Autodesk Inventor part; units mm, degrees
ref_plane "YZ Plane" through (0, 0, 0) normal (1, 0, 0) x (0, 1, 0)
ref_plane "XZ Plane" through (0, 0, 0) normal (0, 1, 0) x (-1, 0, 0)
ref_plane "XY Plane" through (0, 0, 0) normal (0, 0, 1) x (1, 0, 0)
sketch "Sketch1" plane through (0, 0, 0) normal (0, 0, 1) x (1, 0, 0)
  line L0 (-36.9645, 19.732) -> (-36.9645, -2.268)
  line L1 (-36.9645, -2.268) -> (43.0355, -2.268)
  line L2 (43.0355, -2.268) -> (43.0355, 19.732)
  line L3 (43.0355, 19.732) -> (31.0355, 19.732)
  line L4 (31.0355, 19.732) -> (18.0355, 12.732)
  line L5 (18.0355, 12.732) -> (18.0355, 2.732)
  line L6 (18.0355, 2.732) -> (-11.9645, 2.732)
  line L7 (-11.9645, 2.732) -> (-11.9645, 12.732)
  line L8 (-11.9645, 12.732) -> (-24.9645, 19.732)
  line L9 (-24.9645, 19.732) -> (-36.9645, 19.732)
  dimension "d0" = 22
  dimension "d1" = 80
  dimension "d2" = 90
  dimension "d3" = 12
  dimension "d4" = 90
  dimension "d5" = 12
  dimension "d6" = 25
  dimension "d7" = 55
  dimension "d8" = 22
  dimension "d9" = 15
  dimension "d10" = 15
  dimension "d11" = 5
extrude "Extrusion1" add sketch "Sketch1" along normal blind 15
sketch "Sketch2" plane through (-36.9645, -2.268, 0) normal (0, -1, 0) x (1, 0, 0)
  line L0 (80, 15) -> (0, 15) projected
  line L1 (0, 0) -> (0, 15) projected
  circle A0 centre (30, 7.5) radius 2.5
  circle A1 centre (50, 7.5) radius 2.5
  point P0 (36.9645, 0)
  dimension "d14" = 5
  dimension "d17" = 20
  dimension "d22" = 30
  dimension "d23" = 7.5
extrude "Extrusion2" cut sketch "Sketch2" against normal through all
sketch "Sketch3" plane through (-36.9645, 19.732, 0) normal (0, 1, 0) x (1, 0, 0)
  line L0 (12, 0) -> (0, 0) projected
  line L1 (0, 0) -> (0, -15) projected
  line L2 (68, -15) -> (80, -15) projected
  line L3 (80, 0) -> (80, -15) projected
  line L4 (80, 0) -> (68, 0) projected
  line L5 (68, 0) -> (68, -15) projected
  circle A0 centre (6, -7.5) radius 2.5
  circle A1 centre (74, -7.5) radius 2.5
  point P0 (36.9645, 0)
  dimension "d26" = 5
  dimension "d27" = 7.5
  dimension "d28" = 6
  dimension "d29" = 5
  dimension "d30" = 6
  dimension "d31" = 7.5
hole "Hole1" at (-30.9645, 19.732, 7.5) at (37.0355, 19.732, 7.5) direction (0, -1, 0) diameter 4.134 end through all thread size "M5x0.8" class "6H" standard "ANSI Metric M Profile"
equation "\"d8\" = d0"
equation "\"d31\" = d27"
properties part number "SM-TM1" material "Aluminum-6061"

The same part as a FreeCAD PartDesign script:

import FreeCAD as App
import Part
import Sketcher
from FreeCAD import Vector


def add_polygon(sketch, points):
    """Adds a closed chain of lines whose ends are joined by coincident constraints."""
    first, n = sketch.GeometryCount, len(points)
    for a, b in zip(points, points[1:] + points[:1]):
        sketch.addGeometry(Part.LineSegment(App.Vector(*a, 0), App.Vector(*b, 0)), False)
    for i in range(n):
        sketch.addConstraint(Sketcher.Constraint("Coincident", first + i, 2, first + (i + 1) % n, 1))

doc = App.newDocument("Part")
params = doc.addObject("Spreadsheet::Sheet", "Params")
for row, (alias, value) in enumerate([
    ("sketch1_width", "12 mm"),
    ("sketch1_width2", "80 mm"),
    ("sketch1_height", "22 mm"),
    ("pad1_length", "15 mm"),
    ("sketch2_diameter", "5 mm"),
    ("hole_diameter", "4.134 mm"),
], start=1):
    params.set(f"A{row}", alias)
    params.set(f"B{row}", "=" + value)
    params.setAlias(f"B{row}", alias)

body = doc.addObject("PartDesign::Body", "Body")

sketch1 = doc.addObject("Sketcher::SketchObject", "Sketch")
body.addObject(sketch1)
sketch1.AttachmentSupport = (doc.XY_Plane, [""])
sketch1.MapMode = "FlatFace"
add_polygon(sketch1, [(-24.9645, 19.732), (-36.9645, 19.732), (-36.9645, -2.268), (43.0355, -2.268), (43.0355, 19.732), (31.0355, 19.732), (18.0355, 12.732), (18.0355, 2.732), (-11.9645, 2.732), (-11.9645, 12.732)])
sketch1.addConstraint([
    Sketcher.Constraint("Horizontal", 0),
    Sketcher.Constraint("Vertical", 1),
    Sketcher.Constraint("Horizontal", 2),
    Sketcher.Constraint("Vertical", 3),
    Sketcher.Constraint("Horizontal", 4),
    Sketcher.Constraint("Vertical", 6),
    Sketcher.Constraint("Horizontal", 7),
    Sketcher.Constraint("Vertical", 8),
    Sketcher.Constraint("Horizontal", 0, 2, 3, 2),
    Sketcher.Constraint("Horizontal", 5, 2, 8, 2),
    Sketcher.Constraint("Equal", 0, 4),
    Sketcher.Constraint("Equal", 5, 9),
    Sketcher.Constraint("DistanceX", 0, 2, 0, 1, 12.0),
    Sketcher.Constraint("DistanceX", 2, 1, 2, 2, 80.0),
    Sketcher.Constraint("DistanceY", 1, 2, 1, 1, 22.0),
    Sketcher.Constraint("DistanceX", 5, 2, 3, 2, 25.0),
    Sketcher.Constraint("DistanceY", 2, 2, 5, 2, 15.0),
    Sketcher.Constraint("DistanceY", 2, 2, 6, 2, 5.0),
    Sketcher.Constraint("DistanceY", -1, 1, 0, 2, 19.732),
    Sketcher.Constraint("DistanceX", 0, 2, -1, 1, 36.9645),
])
sketch1.setExpression("Constraints[22]", "Params.sketch1_width")
sketch1.setExpression("Constraints[23]", "Params.sketch1_width2")
sketch1.setExpression("Constraints[24]", "Params.sketch1_height")
pad1 = doc.addObject("PartDesign::Pad", "Pad")
body.addObject(pad1)
pad1.Profile = sketch1
pad1.setExpression("Length", "Params.pad1_length")

sketch2 = doc.addObject("Sketcher::SketchObject", "Sketch001")
body.addObject(sketch2)
sketch2.AttachmentSupport = (doc.XZ_Plane, [""])
sketch2.MapMode = "FlatFace"
sketch2.AttachmentOffset = App.Placement(Vector(0, 0, 2.268), App.Rotation())
sketch2.addGeometry([
    Part.Circle(Vector(-6.9645, 7.5, 0), Vector(0, 0, 1), 2.5),
    Part.Circle(Vector(13.0355, 7.5, 0), Vector(0, 0, 1), 2.5),
], False)
sketch2.addConstraint([
    Sketcher.Constraint("Equal", 0, 1),
    Sketcher.Constraint("Horizontal", 0, 3, 1, 3),
    Sketcher.Constraint("Diameter", 0, 5.0),
    Sketcher.Constraint("DistanceX", 0, 3, 1, 3, 20.0),
    Sketcher.Constraint("DistanceY", -1, 1, 0, 3, 7.5),
    Sketcher.Constraint("DistanceX", 0, 3, -1, 1, 6.9645),
])
sketch2.setExpression("Constraints[2]", "Params.sketch2_diameter")
pocket1 = doc.addObject("PartDesign::Pocket", "Pocket")
body.addObject(pocket1)
pocket1.Profile = sketch2
pocket1.Type = "ThroughAll"

sketch3 = doc.addObject("Sketcher::SketchObject", "Sketch002")
body.addObject(sketch3)
sketch3.AttachmentSupport = (doc.XZ_Plane, [""])
sketch3.MapMode = "FlatFace"
sketch3.AttachmentOffset = App.Placement(Vector(0, 0, -19.732), App.Rotation())
sketch3.addGeometry([
    Part.Circle(Vector(-30.9645, 7.5, 0), Vector(0, 0, 1), 2.067),
    Part.Circle(Vector(37.0355, 7.5, 0), Vector(0, 0, 1), 2.067),
], False)
sketch3.addConstraint([
    Sketcher.Constraint("Equal", 0, 1),
    Sketcher.Constraint("Horizontal", 0, 3, 1, 3),
    Sketcher.Constraint("Diameter", 0, 4.134),
    Sketcher.Constraint("DistanceX", 0, 3, 1, 3, 68.0),
    Sketcher.Constraint("DistanceY", -1, 1, 0, 3, 7.5),
    Sketcher.Constraint("DistanceX", 0, 3, -1, 1, 30.9645),
])
doc.recompute()
hole = doc.addObject("PartDesign::Hole", "Hole")
body.addObject(hole)
hole.Profile = sketch3
hole.ThreadType = "None"
hole.setExpression("Diameter", "Params.hole_diameter")
hole.DepthType = "ThroughAll"
hole.Reversed = True

doc.recompute()
